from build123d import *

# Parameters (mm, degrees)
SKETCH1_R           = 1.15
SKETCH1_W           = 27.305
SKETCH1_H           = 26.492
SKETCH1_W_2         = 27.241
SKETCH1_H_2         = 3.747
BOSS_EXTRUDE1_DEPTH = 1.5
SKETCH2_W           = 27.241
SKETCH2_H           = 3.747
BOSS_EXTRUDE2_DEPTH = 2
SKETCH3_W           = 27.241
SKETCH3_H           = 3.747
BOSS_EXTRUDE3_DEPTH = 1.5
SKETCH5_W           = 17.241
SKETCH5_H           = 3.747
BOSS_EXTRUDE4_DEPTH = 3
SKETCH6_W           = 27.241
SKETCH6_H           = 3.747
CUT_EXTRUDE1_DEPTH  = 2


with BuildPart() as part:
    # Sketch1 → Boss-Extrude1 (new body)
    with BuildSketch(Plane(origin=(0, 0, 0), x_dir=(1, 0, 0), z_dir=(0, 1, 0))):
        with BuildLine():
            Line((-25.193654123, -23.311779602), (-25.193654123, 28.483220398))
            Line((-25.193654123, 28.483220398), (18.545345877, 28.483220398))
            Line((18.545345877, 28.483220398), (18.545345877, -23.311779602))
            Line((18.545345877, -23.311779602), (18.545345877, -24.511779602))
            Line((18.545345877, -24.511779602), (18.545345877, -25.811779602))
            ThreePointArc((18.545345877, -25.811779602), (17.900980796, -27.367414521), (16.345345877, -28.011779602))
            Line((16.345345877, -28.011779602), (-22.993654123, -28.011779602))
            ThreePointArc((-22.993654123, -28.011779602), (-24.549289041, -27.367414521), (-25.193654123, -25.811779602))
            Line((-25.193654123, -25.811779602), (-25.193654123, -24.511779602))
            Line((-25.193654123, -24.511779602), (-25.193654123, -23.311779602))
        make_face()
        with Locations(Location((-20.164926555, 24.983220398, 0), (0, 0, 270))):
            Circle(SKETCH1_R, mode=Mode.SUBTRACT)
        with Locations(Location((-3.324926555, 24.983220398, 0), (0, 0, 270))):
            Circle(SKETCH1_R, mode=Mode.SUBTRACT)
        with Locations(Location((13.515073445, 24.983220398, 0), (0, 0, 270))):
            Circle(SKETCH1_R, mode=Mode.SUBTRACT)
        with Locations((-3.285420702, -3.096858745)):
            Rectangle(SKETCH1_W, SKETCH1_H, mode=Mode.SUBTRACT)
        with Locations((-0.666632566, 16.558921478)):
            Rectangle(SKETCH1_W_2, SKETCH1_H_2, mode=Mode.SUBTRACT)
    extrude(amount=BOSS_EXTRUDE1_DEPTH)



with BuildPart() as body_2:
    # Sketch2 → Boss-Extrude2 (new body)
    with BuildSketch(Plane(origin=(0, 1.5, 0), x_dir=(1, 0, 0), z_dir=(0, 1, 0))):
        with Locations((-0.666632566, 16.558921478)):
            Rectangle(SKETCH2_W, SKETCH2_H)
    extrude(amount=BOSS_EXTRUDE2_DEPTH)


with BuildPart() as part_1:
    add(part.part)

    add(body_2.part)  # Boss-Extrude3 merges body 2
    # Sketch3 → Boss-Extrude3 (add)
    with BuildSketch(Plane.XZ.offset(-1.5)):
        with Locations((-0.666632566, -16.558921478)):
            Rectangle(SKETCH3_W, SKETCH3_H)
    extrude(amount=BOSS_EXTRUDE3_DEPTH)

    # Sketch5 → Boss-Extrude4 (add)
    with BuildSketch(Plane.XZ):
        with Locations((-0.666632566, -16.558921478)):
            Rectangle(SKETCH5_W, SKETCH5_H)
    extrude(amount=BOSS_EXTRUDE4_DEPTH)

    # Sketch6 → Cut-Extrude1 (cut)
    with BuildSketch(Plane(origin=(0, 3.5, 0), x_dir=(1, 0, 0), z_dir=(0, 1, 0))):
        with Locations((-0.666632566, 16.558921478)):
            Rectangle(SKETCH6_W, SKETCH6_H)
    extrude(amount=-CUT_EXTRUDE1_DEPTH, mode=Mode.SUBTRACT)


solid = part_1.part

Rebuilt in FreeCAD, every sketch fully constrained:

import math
import FreeCAD as App
import Part
import Sketcher

V = App.Vector

doc = App.newDocument("Part")
body = doc.addObject("PartDesign::Body", "Body")

sketch1 = body.newObject("Sketcher::SketchObject", "Sketch")
sketch1.AttachmentSupport = (doc.getObject("XZ_Plane"), [""])
sketch1.MapMode = "FlatFace"
sketch1.addGeometry(Part.LineSegment(V(18.545346, -28.48322, 0), V(-25.193654, -28.48322, 0)), False)
sketch1.addGeometry(Part.LineSegment(V(-25.193654, -28.48322, 0), V(-25.193654, 25.81178, 0)), False)
sketch1.addGeometry(Part.ArcOfCircle(Part.Circle(V(-22.993654, 25.81178, 0), V(0, 0, 1), 2.2), math.radians(90), math.radians(180)), False)
sketch1.addGeometry(Part.LineSegment(V(-22.993654, 28.01178, 0), V(16.345346, 28.01178, 0)), False)
sketch1.addGeometry(Part.ArcOfCircle(Part.Circle(V(16.345346, 25.81178, 0), V(0, 0, 1), 2.2), math.radians(0), math.radians(90)), False)
sketch1.addGeometry(Part.LineSegment(V(18.545346, 25.81178, 0), V(18.545346, -28.48322, 0)), False)
sketch1.addGeometry(Part.LineSegment(V(-16.937921, 16.342859, 0), V(-16.937921, -10.149141, 0)), False)
sketch1.addGeometry(Part.LineSegment(V(-16.937921, -10.149141, 0), V(10.367079, -10.149141, 0)), False)
sketch1.addGeometry(Part.LineSegment(V(10.367079, -10.149141, 0), V(10.367079, 16.342859, 0)), False)
sketch1.addGeometry(Part.LineSegment(V(10.367079, 16.342859, 0), V(-16.937921, 16.342859, 0)), False)
sketch1.addGeometry(Part.Circle(V(13.515073, -24.98322, 0), V(0, 0, 1), 1.15), False)
sketch1.addGeometry(Part.LineSegment(V(-14.287133, -14.685421, 0), V(-14.287133, -18.432421, 0)), False)
sketch1.addGeometry(Part.LineSegment(V(-14.287133, -18.432421, 0), V(12.953867, -18.432421, 0)), False)
sketch1.addGeometry(Part.LineSegment(V(12.953867, -18.432421, 0), V(12.953867, -14.685421, 0)), False)
sketch1.addGeometry(Part.LineSegment(V(12.953867, -14.685421, 0), V(-14.287133, -14.685421, 0)), False)
sketch1.addGeometry(Part.Circle(V(-3.324927, -24.98322, 0), V(0, 0, 1), 1.15), False)
sketch1.addGeometry(Part.Circle(V(-20.164927, -24.98322, 0), V(0, 0, 1), 1.15), False)
sketch1.addConstraint(Sketcher.Constraint("Coincident", 0, 2, 1, 1))
sketch1.addConstraint(Sketcher.Constraint("Tangent", 1, 2, 2, 2))
sketch1.addConstraint(Sketcher.Constraint("Tangent", 2, 1, 3, 1))
sketch1.addConstraint(Sketcher.Constraint("Tangent", 3, 2, 4, 2))
sketch1.addConstraint(Sketcher.Constraint("Tangent", 4, 1, 5, 1))
sketch1.addConstraint(Sketcher.Constraint("Coincident", 5, 2, 0, 1))
sketch1.addConstraint(Sketcher.Constraint("Coincident", 6, 2, 7, 1))
sketch1.addConstraint(Sketcher.Constraint("Coincident", 7, 2, 8, 1))
sketch1.addConstraint(Sketcher.Constraint("Coincident", 8, 2, 9, 1))
sketch1.addConstraint(Sketcher.Constraint("Coincident", 9, 2, 6, 1))
sketch1.addConstraint(Sketcher.Constraint("Coincident", 11, 2, 12, 1))
sketch1.addConstraint(Sketcher.Constraint("Coincident", 12, 2, 13, 1))
sketch1.addConstraint(Sketcher.Constraint("Coincident", 13, 2, 14, 1))
sketch1.addConstraint(Sketcher.Constraint("Coincident", 14, 2, 11, 1))
sketch1.addConstraint(Sketcher.Constraint("Horizontal", 0))
sketch1.addConstraint(Sketcher.Constraint("Vertical", 1))
sketch1.addConstraint(Sketcher.Constraint("Horizontal", 3))
sketch1.addConstraint(Sketcher.Constraint("Vertical", 5))
sketch1.addConstraint(Sketcher.Constraint("Vertical", 6))
sketch1.addConstraint(Sketcher.Constraint("Horizontal", 7))
sketch1.addConstraint(Sketcher.Constraint("Vertical", 8))
sketch1.addConstraint(Sketcher.Constraint("Horizontal", 9))
sketch1.addConstraint(Sketcher.Constraint("Vertical", 11))
sketch1.addConstraint(Sketcher.Constraint("Horizontal", 12))
sketch1.addConstraint(Sketcher.Constraint("Vertical", 13))
sketch1.addConstraint(Sketcher.Constraint("Horizontal", 14))
sketch1.addConstraint(Sketcher.Constraint("Equal", 2, 4))
sketch1.addConstraint(Sketcher.Constraint("Equal", 10, 15))
sketch1.addConstraint(Sketcher.Constraint("Equal", 15, 16))
sketch1.addConstraint(Sketcher.Constraint("Horizontal", 10, 3, 15, 3))
sketch1.addConstraint(Sketcher.Constraint("Horizontal", 15, 3, 16, 3))
sketch1.addConstraint(Sketcher.Constraint("Diameter", 10, 2.3))
sketch1.addConstraint(Sketcher.Constraint("Radius", 2, 2.2))
sketch1.addConstraint(Sketcher.Constraint("DistanceY", 0, 2, 16, 3, 3.5))
sketch1.addConstraint(Sketcher.Constraint("DistanceX", 0, 2, 0, 1, 43.739))
sketch1.addConstraint(Sketcher.Constraint("DistanceX", 7, 1, 7, 2, 27.305))
sketch1.addConstraint(Sketcher.Constraint("DistanceX", 12, 1, 12, 2, 27.241))
sketch1.addConstraint(Sketcher.Constraint("DistanceY", 1, 1, 1, 2, 54.295))
sketch1.addConstraint(Sketcher.Constraint("DistanceY", 6, 2, 6, 1, 26.492))
sketch1.addConstraint(Sketcher.Constraint("DistanceY", 11, 2, 11, 1, 3.747))
sketch1.addConstraint(Sketcher.Constraint("DistanceX", 15, 3, 10, 3, 16.84))
sketch1.addConstraint(Sketcher.Constraint("DistanceX", 16, 3, 15, 3, 16.84))
sketch1.addConstraint(Sketcher.Constraint("DistanceY", 16, 3, 11, 2, 6.550799))
sketch1.addConstraint(Sketcher.Constraint("DistanceY", -1, 1, 2, 3, 25.81178))
sketch1.addConstraint(Sketcher.Constraint("DistanceX", 6, 2, -1, 1, 16.937921))
sketch1.addConstraint(Sketcher.Constraint("DistanceY", 6, 2, -1, 1, 10.149141))
sketch1.addConstraint(Sketcher.Constraint("DistanceX", 6, 2, 11, 2, 2.650788))
sketch1.addConstraint(Sketcher.Constraint("DistanceX", 0, 2, 11, 2, 10.906522))
sketch1.addConstraint(Sketcher.Constraint("DistanceX", -1, 1, 10, 3, 13.515073))
pad1 = body.newObject("PartDesign::Pad", "Pad")
pad1.Profile = sketch1
pad1.Length = 1.5
pad1.Reversed = True
body2 = doc.addObject("PartDesign::Body", "Body001")

sketch2 = body2.newObject("Sketcher::SketchObject", "Sketch001")
sketch2.AttachmentSupport = (doc.getObject("XZ_Plane001"), [""])
sketch2.MapMode = "FlatFace"
sketch2.AttachmentOffset = App.Placement(V(0, 0, -1.5), App.Rotation())
sketch2.addGeometry(Part.LineSegment(V(-14.287133, -18.432421, 0), V(-14.287133, -14.685421, 0)), False)
sketch2.addGeometry(Part.LineSegment(V(-14.287133, -14.685421, 0), V(12.953867, -14.685421, 0)), False)
sketch2.addGeometry(Part.LineSegment(V(12.953867, -14.685421, 0), V(12.953867, -18.432421, 0)), False)
sketch2.addGeometry(Part.LineSegment(V(12.953867, -18.432421, 0), V(-14.287133, -18.432421, 0)), False)
sketch2.addConstraint(Sketcher.Constraint("Coincident", 0, 2, 1, 1))
sketch2.addConstraint(Sketcher.Constraint("Coincident", 1, 2, 2, 1))
sketch2.addConstraint(Sketcher.Constraint("Coincident", 2, 2, 3, 1))
sketch2.addConstraint(Sketcher.Constraint("Coincident", 3, 2, 0, 1))
sketch2.addConstraint(Sketcher.Constraint("Vertical", 0))
sketch2.addConstraint(Sketcher.Constraint("Horizontal", 1))
sketch2.addConstraint(Sketcher.Constraint("Vertical", 2))
sketch2.addConstraint(Sketcher.Constraint("Horizontal", 3))
sketch2.addConstraint(Sketcher.Constraint("DistanceX", 1, 1, 1, 2, 27.241))
sketch2.addConstraint(Sketcher.Constraint("DistanceY", 0, 1, 0, 2, 3.747))
sketch2.addConstraint(Sketcher.Constraint("DistanceY", 0, 2, -1, 1, 14.685421))
sketch2.addConstraint(Sketcher.Constraint("DistanceX", 0, 2, -1, 1, 14.287133))
pad2 = body2.newObject("PartDesign::Pad", "Pad001")
pad2.Profile = sketch2
pad2.Length = 2
pad2.Reversed = True
body.AllowCompound = True
doc.recompute()

boolean = body.newObject("PartDesign::Boolean", "Boolean")
boolean.Type = "Fuse"
boolean.addObjects([body2])

sketch3 = body.newObject("Sketcher::SketchObject", "Sketch002")
sketch3.AttachmentSupport = (doc.getObject("XZ_Plane"), [""])
sketch3.MapMode = "FlatFace"
sketch3.AttachmentOffset = App.Placement(V(0, 0, -1.5), App.Rotation())
sketch3.addGeometry(Part.LineSegment(V(-14.287133, -14.685421, 0), V(-14.287133, -18.432421, 0)), False)
sketch3.addGeometry(Part.LineSegment(V(-14.287133, -18.432421, 0), V(12.953867, -18.432421, 0)), False)
sketch3.addGeometry(Part.LineSegment(V(12.953867, -18.432421, 0), V(12.953867, -14.685421, 0)), False)
sketch3.addGeometry(Part.LineSegment(V(12.953867, -14.685421, 0), V(-14.287133, -14.685421, 0)), False)
sketch3.addConstraint(Sketcher.Constraint("Coincident", 0, 2, 1, 1))
sketch3.addConstraint(Sketcher.Constraint("Coincident", 1, 2, 2, 1))
sketch3.addConstraint(Sketcher.Constraint("Coincident", 2, 2, 3, 1))
sketch3.addConstraint(Sketcher.Constraint("Coincident", 3, 2, 0, 1))
sketch3.addConstraint(Sketcher.Constraint("Vertical", 0))
sketch3.addConstraint(Sketcher.Constraint("Horizontal", 1))
sketch3.addConstraint(Sketcher.Constraint("Vertical", 2))
sketch3.addConstraint(Sketcher.Constraint("Horizontal", 3))
sketch3.addConstraint(Sketcher.Constraint("DistanceX", 1, 1, 1, 2, 27.241))
sketch3.addConstraint(Sketcher.Constraint("DistanceY", 0, 2, 0, 1, 3.747))
sketch3.addConstraint(Sketcher.Constraint("DistanceY", 0, 2, -1, 1, 18.432421))
sketch3.addConstraint(Sketcher.Constraint("DistanceX", 0, 2, -1, 1, 14.287133))
pad3 = body.newObject("PartDesign::Pad", "Pad002")
pad3.Profile = sketch3
pad3.Length = 1.5

sketch4 = body.newObject("Sketcher::SketchObject", "Sketch003")
sketch4.AttachmentSupport = (doc.getObject("XZ_Plane"), [""])
sketch4.MapMode = "FlatFace"
sketch4.addGeometry(Part.LineSegment(V(-9.287133, -14.685421, 0), V(-9.287133, -18.432421, 0)), False)
sketch4.addGeometry(Part.LineSegment(V(-9.287133, -18.432421, 0), V(7.953867, -18.432421, 0)), False)
sketch4.addGeometry(Part.LineSegment(V(7.953867, -18.432421, 0), V(7.953867, -14.685421, 0)), False)
sketch4.addGeometry(Part.LineSegment(V(7.953867, -14.685421, 0), V(-9.287133, -14.685421, 0)), False)
sketch4.addConstraint(Sketcher.Constraint("Coincident", 0, 2, 1, 1))
sketch4.addConstraint(Sketcher.Constraint("Coincident", 1, 2, 2, 1))
sketch4.addConstraint(Sketcher.Constraint("Coincident", 2, 2, 3, 1))
sketch4.addConstraint(Sketcher.Constraint("Coincident", 3, 2, 0, 1))
sketch4.addConstraint(Sketcher.Constraint("Vertical", 0))
sketch4.addConstraint(Sketcher.Constraint("Horizontal", 1))
sketch4.addConstraint(Sketcher.Constraint("Vertical", 2))
sketch4.addConstraint(Sketcher.Constraint("Horizontal", 3))
sketch4.addConstraint(Sketcher.Constraint("DistanceX", 1, 1, 1, 2, 17.241))
sketch4.addConstraint(Sketcher.Constraint("DistanceY", 0, 2, 0, 1, 3.747))
sketch4.addConstraint(Sketcher.Constraint("DistanceY", 0, 2, -1, 1, 18.432421))
sketch4.addConstraint(Sketcher.Constraint("DistanceX", 0, 2, -1, 1, 9.287133))
pad4 = body.newObject("PartDesign::Pad", "Pad003")
pad4.Profile = sketch4
pad4.Length = 3

sketch5 = body.newObject("Sketcher::SketchObject", "Sketch004")
sketch5.AttachmentSupport = (doc.getObject("XZ_Plane"), [""])
sketch5.MapMode = "FlatFace"
sketch5.AttachmentOffset = App.Placement(V(0, 0, -3.5), App.Rotation())
sketch5.addGeometry(Part.LineSegment(V(-14.287133, -18.432421, 0), V(-14.287133, -14.685421, 0)), False)
sketch5.addGeometry(Part.LineSegment(V(-14.287133, -14.685421, 0), V(12.953867, -14.685421, 0)), False)
sketch5.addGeometry(Part.LineSegment(V(12.953867, -14.685421, 0), V(12.953867, -18.432421, 0)), False)
sketch5.addGeometry(Part.LineSegment(V(12.953867, -18.432421, 0), V(-14.287133, -18.432421, 0)), False)
sketch5.addConstraint(Sketcher.Constraint("Coincident", 0, 2, 1, 1))
sketch5.addConstraint(Sketcher.Constraint("Coincident", 1, 2, 2, 1))
sketch5.addConstraint(Sketcher.Constraint("Coincident", 2, 2, 3, 1))
sketch5.addConstraint(Sketcher.Constraint("Coincident", 3, 2, 0, 1))
sketch5.addConstraint(Sketcher.Constraint("Vertical", 0))
sketch5.addConstraint(Sketcher.Constraint("Horizontal", 1))
sketch5.addConstraint(Sketcher.Constraint("Vertical", 2))
sketch5.addConstraint(Sketcher.Constraint("Horizontal", 3))
sketch5.addConstraint(Sketcher.Constraint("DistanceX", 1, 1, 1, 2, 27.241))
sketch5.addConstraint(Sketcher.Constraint("DistanceY", 0, 1, 0, 2, 3.747))
sketch5.addConstraint(Sketcher.Constraint("DistanceY", 0, 2, -1, 1, 14.685421))
sketch5.addConstraint(Sketcher.Constraint("DistanceX", 0, 2, -1, 1, 14.287133))
pocket1 = body.newObject("PartDesign::Pocket", "Pocket")
pocket1.Profile = sketch5
pocket1.Length = 2
pocket1.Reversed = True

doc.recompute()
